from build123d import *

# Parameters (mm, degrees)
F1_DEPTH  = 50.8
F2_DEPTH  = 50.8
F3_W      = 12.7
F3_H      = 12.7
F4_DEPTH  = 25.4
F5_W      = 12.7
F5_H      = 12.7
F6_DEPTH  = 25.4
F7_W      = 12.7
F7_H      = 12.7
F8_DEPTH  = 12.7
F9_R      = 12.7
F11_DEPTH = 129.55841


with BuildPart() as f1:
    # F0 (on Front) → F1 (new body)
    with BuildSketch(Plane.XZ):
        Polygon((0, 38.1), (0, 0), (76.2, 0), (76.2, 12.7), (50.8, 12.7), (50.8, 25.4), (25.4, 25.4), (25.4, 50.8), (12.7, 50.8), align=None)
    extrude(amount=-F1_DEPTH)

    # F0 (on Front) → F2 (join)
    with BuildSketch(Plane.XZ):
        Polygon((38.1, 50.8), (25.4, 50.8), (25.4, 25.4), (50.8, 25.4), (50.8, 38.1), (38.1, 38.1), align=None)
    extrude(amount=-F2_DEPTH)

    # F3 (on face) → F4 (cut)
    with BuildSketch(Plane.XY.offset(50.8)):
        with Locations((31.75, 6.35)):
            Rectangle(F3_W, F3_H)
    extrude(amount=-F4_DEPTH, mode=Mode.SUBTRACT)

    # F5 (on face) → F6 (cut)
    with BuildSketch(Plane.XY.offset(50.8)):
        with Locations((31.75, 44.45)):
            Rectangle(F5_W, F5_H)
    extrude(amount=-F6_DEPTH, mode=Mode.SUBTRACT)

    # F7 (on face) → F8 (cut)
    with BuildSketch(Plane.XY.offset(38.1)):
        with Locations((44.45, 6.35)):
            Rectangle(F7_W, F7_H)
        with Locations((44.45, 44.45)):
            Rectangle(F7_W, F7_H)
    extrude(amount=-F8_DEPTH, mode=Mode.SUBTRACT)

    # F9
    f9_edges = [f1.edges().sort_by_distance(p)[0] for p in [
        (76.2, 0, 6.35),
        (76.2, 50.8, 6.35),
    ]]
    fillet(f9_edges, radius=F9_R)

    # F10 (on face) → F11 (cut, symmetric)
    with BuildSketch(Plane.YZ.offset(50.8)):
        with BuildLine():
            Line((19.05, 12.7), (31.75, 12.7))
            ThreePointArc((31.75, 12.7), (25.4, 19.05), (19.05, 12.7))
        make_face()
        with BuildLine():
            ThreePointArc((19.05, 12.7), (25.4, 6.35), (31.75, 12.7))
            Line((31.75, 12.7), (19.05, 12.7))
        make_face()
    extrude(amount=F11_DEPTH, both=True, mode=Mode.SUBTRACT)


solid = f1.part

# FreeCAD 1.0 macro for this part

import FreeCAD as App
import Part
import Sketcher
from FreeCAD import Vector
Q = App.Units.Quantity


def edges_at(feature, points):
    """Names of the edges that pass closest to the given points."""
    edges = feature.Shape.Edges
    near = lambda p: min(range(len(edges)), key=lambda i: edges[i].distToShape(Part.Vertex(*p))[0])
    return sorted({f"Edge{near(p) + 1}" for p in points})


def add_polygon(sketch, points):
    """Adds a closed chain of lines whose ends are joined by coincident constraints."""
    first, n = sketch.GeometryCount, len(points)
    for a, b in zip(points, points[1:] + points[:1]):
        sketch.addGeometry(Part.LineSegment(App.Vector(*a, 0), App.Vector(*b, 0)), False)
    for i in range(n):
        sketch.addConstraint(Sketcher.Constraint("Coincident", first + i, 2, first + (i + 1) % n, 1))

doc = App.newDocument("Part")
body = doc.addObject("PartDesign::Body", "Body")

# Sketch on XZ plane
sketch1 = body.newObject("Sketcher::SketchObject", "Sketch")
sketch1.AttachmentSupport = (doc.getObject("XZ_Plane"), [""])
sketch1.MapMode = "FlatFace"
add_polygon(sketch1, [(0, 38.1), (0, 0), (76.2, 0), (76.2, 12.7), (50.8, 12.7), (50.8, 25.4), (25.4, 25.4), (25.4, 50.8), (12.7, 50.8)])  # lines 0-8
sketch1.addConstraint([
    Sketcher.Constraint("Vertical", 0),
    Sketcher.Constraint("Horizontal", 1),
    Sketcher.Constraint("Vertical", 2),
    Sketcher.Constraint("Horizontal", 3),
    Sketcher.Constraint("Vertical", 4),
    Sketcher.Constraint("Horizontal", 5),
    Sketcher.Constraint("Vertical", 6),
    Sketcher.Constraint("Horizontal", 7),
    Sketcher.Constraint("Coincident", 0, 2, -1, 1),
    Sketcher.Constraint("Equal", 3, 5),
    Sketcher.Constraint("Equal", 7, 2),
    Sketcher.Constraint("Equal", 2, 4),
    Sketcher.Constraint("Equal", 5, 6),
    Sketcher.Constraint("DistanceX", 1, 1, 1, 2, Q("3 in")),
    Sketcher.Constraint("DistanceX", 3, 2, 3, 1, Q("1 in")),
    Sketcher.Constraint("DistanceX", 7, 2, 7, 1, Q("0.5 in")),
    Sketcher.Constraint("DistanceY", 0, 2, 0, 1, Q("1.5 in")),
])
pad1 = body.newObject("PartDesign::Pad", "Pad")
pad1.Profile = sketch1
pad1.Length = Q("2 in")
pad1.Reversed = True

# Sketch on XZ plane
sketch2 = body.newObject("Sketcher::SketchObject", "Sketch001")
sketch2.AttachmentSupport = (doc.getObject("XZ_Plane"), [""])
sketch2.MapMode = "FlatFace"
add_polygon(sketch2, [(38.1, 50.8), (25.4, 50.8), (25.4, 25.4), (50.8, 25.4), (50.8, 38.1), (38.1, 38.1)])  # lines 0-5
sketch2.addConstraint([
    Sketcher.Constraint("Horizontal", 0),
    Sketcher.Constraint("Vertical", 1),
    Sketcher.Constraint("Horizontal", 2),
    Sketcher.Constraint("Vertical", 3),
    Sketcher.Constraint("Horizontal", 4),
    Sketcher.Constraint("Vertical", 5),
    Sketcher.Constraint("Equal", 0, 4),
    Sketcher.Constraint("Equal", 2, 1),
    Sketcher.Constraint("Equal", 4, 3),
    Sketcher.Constraint("DistanceX", 2, 1, 2, 2, Q("1 in")),
    Sketcher.Constraint("DistanceX", -1, 1, 0, 2, Q("1 in")),
    Sketcher.Constraint("DistanceY", -1, 1, 0, 2, Q("2 in")),
])
pad2 = body.newObject("PartDesign::Pad", "Pad001")
pad2.Profile = sketch2
pad2.Length = Q("2 in")
pad2.Reversed = True

# Sketch on XY plane
sketch3 = body.newObject("Sketcher::SketchObject", "Sketch002")
sketch3.AttachmentSupport = (doc.getObject("XY_Plane"), [""])
sketch3.MapMode = "FlatFace"
sketch3.AttachmentOffset = App.Placement(Vector(0, 0, 2 * 25.4), App.Rotation())
add_polygon(sketch3, [(25.4, 12.7), (25.4, 0), (38.1, 0), (38.1, 12.7)])  # lines 0-3
sketch3.addConstraint([
    Sketcher.Constraint("Vertical", 0),
    Sketcher.Constraint("Horizontal", 1),
    Sketcher.Constraint("Vertical", 2),
    Sketcher.Constraint("Horizontal", 3),
    Sketcher.Constraint("PointOnObject", 0, 2, -1),
    Sketcher.Constraint("Equal", 3, 0),
    Sketcher.Constraint("DistanceX", 1, 1, 1, 2, Q("0.5 in")),
    Sketcher.Constraint("DistanceX", -1, 1, 0, 2, Q("1 in")),
])
pocket1 = body.newObject("PartDesign::Pocket", "Pocket")
pocket1.Profile = sketch3
pocket1.Length = Q("1 in")

# Sketch on XY plane
sketch4 = body.newObject("Sketcher::SketchObject", "Sketch003")
sketch4.AttachmentSupport = (doc.getObject("XY_Plane"), [""])
sketch4.MapMode = "FlatFace"
sketch4.AttachmentOffset = App.Placement(Vector(0, 0, 2 * 25.4), App.Rotation())
add_polygon(sketch4, [(25.4, 50.8), (25.4, 38.1), (38.1, 38.1), (38.1, 50.8)])  # lines 0-3
sketch4.addConstraint([
    Sketcher.Constraint("Vertical", 0),
    Sketcher.Constraint("Horizontal", 1),
    Sketcher.Constraint("Vertical", 2),
    Sketcher.Constraint("Horizontal", 3),
    Sketcher.Constraint("Equal", 3, 0),
    Sketcher.Constraint("DistanceX", 1, 1, 1, 2, Q("0.5 in")),
    Sketcher.Constraint("DistanceX", -1, 1, 0, 2, Q("1 in")),
    Sketcher.Constraint("DistanceY", -1, 1, 2, 2, Q("2 in")),
])
pocket2 = body.newObject("PartDesign::Pocket", "Pocket001")
pocket2.Profile = sketch4
pocket2.Length = Q("1 in")

# Sketch on XY plane
sketch5 = body.newObject("Sketcher::SketchObject", "Sketch004")
sketch5.AttachmentSupport = (doc.getObject("XY_Plane"), [""])
sketch5.MapMode = "FlatFace"
sketch5.AttachmentOffset = App.Placement(Vector(0, 0, 1.5 * 25.4), App.Rotation())
add_polygon(sketch5, [(38.1, 12.7), (38.1, 0), (50.8, 0), (50.8, 12.7)])  # lines 0-3
add_polygon(sketch5, [(38.1, 50.8), (38.1, 38.1), (50.8, 38.1), (50.8, 50.8)])  # lines 4-7
sketch5.addConstraint([
    Sketcher.Constraint("Vertical", 0),
    Sketcher.Constraint("Horizontal", 1),
    Sketcher.Constraint("Vertical", 2),
    Sketcher.Constraint("Horizontal", 3),
    Sketcher.Constraint("Vertical", 4),
    Sketcher.Constraint("Horizontal", 5),
    Sketcher.Constraint("Vertical", 6),
    Sketcher.Constraint("Horizontal", 7),
    Sketcher.Constraint("PointOnObject", 0, 2, -1),
    Sketcher.Constraint("Vertical", 3, 2, 4, 2),
    Sketcher.Constraint("Vertical", 2, 2, 5, 2),
    Sketcher.Constraint("Equal", 7, 0),
    Sketcher.Constraint("Equal", 2, 4),
    Sketcher.Constraint("DistanceX", 1, 1, 1, 2, Q("0.5 in")),
    Sketcher.Constraint("DistanceX", -1, 1, 1, 2, Q("2 in")),
    Sketcher.Constraint("DistanceY", -1, 1, 6, 2, Q("2 in")),
])
pocket3 = body.newObject("PartDesign::Pocket", "Pocket002")
pocket3.Profile = sketch5
pocket3.Length = Q("0.5 in")
doc.recompute()

fillet = body.newObject("PartDesign::Fillet", "Fillet")
fillet.Base = (pocket3, edges_at(pocket3, [(76.2, 0, 6.35), (76.2, 50.8, 6.35)]))
fillet.Radius = Q("0.5 in")

# Sketch on YZ plane
sketch6 = body.newObject("Sketcher::SketchObject", "Sketch005")
sketch6.AttachmentSupport = (doc.getObject("YZ_Plane"), [""])
sketch6.MapMode = "FlatFace"
sketch6.AttachmentOffset = App.Placement(Vector(0, 0, 2 * 25.4), App.Rotation())
sketch6.addGeometry(Part.Circle(Vector(25.4, 12.7, 0), Vector(0, 0, 1), 6.35), False)
sketch6.addConstraint([
    Sketcher.Constraint("Diameter", 0, Q("0.5 in")),
    Sketcher.Constraint("DistanceX", -1, 1, 0, 3, Q("1 in")),
    Sketcher.Constraint("DistanceY", -1, 1, 0, 3, Q("0.5 in")),
])
pocket4 = body.newObject("PartDesign::Pocket", "Pocket003")
pocket4.Profile = sketch6
pocket4.Length = 259.11682
pocket4.Midplane = True

doc.recompute()
